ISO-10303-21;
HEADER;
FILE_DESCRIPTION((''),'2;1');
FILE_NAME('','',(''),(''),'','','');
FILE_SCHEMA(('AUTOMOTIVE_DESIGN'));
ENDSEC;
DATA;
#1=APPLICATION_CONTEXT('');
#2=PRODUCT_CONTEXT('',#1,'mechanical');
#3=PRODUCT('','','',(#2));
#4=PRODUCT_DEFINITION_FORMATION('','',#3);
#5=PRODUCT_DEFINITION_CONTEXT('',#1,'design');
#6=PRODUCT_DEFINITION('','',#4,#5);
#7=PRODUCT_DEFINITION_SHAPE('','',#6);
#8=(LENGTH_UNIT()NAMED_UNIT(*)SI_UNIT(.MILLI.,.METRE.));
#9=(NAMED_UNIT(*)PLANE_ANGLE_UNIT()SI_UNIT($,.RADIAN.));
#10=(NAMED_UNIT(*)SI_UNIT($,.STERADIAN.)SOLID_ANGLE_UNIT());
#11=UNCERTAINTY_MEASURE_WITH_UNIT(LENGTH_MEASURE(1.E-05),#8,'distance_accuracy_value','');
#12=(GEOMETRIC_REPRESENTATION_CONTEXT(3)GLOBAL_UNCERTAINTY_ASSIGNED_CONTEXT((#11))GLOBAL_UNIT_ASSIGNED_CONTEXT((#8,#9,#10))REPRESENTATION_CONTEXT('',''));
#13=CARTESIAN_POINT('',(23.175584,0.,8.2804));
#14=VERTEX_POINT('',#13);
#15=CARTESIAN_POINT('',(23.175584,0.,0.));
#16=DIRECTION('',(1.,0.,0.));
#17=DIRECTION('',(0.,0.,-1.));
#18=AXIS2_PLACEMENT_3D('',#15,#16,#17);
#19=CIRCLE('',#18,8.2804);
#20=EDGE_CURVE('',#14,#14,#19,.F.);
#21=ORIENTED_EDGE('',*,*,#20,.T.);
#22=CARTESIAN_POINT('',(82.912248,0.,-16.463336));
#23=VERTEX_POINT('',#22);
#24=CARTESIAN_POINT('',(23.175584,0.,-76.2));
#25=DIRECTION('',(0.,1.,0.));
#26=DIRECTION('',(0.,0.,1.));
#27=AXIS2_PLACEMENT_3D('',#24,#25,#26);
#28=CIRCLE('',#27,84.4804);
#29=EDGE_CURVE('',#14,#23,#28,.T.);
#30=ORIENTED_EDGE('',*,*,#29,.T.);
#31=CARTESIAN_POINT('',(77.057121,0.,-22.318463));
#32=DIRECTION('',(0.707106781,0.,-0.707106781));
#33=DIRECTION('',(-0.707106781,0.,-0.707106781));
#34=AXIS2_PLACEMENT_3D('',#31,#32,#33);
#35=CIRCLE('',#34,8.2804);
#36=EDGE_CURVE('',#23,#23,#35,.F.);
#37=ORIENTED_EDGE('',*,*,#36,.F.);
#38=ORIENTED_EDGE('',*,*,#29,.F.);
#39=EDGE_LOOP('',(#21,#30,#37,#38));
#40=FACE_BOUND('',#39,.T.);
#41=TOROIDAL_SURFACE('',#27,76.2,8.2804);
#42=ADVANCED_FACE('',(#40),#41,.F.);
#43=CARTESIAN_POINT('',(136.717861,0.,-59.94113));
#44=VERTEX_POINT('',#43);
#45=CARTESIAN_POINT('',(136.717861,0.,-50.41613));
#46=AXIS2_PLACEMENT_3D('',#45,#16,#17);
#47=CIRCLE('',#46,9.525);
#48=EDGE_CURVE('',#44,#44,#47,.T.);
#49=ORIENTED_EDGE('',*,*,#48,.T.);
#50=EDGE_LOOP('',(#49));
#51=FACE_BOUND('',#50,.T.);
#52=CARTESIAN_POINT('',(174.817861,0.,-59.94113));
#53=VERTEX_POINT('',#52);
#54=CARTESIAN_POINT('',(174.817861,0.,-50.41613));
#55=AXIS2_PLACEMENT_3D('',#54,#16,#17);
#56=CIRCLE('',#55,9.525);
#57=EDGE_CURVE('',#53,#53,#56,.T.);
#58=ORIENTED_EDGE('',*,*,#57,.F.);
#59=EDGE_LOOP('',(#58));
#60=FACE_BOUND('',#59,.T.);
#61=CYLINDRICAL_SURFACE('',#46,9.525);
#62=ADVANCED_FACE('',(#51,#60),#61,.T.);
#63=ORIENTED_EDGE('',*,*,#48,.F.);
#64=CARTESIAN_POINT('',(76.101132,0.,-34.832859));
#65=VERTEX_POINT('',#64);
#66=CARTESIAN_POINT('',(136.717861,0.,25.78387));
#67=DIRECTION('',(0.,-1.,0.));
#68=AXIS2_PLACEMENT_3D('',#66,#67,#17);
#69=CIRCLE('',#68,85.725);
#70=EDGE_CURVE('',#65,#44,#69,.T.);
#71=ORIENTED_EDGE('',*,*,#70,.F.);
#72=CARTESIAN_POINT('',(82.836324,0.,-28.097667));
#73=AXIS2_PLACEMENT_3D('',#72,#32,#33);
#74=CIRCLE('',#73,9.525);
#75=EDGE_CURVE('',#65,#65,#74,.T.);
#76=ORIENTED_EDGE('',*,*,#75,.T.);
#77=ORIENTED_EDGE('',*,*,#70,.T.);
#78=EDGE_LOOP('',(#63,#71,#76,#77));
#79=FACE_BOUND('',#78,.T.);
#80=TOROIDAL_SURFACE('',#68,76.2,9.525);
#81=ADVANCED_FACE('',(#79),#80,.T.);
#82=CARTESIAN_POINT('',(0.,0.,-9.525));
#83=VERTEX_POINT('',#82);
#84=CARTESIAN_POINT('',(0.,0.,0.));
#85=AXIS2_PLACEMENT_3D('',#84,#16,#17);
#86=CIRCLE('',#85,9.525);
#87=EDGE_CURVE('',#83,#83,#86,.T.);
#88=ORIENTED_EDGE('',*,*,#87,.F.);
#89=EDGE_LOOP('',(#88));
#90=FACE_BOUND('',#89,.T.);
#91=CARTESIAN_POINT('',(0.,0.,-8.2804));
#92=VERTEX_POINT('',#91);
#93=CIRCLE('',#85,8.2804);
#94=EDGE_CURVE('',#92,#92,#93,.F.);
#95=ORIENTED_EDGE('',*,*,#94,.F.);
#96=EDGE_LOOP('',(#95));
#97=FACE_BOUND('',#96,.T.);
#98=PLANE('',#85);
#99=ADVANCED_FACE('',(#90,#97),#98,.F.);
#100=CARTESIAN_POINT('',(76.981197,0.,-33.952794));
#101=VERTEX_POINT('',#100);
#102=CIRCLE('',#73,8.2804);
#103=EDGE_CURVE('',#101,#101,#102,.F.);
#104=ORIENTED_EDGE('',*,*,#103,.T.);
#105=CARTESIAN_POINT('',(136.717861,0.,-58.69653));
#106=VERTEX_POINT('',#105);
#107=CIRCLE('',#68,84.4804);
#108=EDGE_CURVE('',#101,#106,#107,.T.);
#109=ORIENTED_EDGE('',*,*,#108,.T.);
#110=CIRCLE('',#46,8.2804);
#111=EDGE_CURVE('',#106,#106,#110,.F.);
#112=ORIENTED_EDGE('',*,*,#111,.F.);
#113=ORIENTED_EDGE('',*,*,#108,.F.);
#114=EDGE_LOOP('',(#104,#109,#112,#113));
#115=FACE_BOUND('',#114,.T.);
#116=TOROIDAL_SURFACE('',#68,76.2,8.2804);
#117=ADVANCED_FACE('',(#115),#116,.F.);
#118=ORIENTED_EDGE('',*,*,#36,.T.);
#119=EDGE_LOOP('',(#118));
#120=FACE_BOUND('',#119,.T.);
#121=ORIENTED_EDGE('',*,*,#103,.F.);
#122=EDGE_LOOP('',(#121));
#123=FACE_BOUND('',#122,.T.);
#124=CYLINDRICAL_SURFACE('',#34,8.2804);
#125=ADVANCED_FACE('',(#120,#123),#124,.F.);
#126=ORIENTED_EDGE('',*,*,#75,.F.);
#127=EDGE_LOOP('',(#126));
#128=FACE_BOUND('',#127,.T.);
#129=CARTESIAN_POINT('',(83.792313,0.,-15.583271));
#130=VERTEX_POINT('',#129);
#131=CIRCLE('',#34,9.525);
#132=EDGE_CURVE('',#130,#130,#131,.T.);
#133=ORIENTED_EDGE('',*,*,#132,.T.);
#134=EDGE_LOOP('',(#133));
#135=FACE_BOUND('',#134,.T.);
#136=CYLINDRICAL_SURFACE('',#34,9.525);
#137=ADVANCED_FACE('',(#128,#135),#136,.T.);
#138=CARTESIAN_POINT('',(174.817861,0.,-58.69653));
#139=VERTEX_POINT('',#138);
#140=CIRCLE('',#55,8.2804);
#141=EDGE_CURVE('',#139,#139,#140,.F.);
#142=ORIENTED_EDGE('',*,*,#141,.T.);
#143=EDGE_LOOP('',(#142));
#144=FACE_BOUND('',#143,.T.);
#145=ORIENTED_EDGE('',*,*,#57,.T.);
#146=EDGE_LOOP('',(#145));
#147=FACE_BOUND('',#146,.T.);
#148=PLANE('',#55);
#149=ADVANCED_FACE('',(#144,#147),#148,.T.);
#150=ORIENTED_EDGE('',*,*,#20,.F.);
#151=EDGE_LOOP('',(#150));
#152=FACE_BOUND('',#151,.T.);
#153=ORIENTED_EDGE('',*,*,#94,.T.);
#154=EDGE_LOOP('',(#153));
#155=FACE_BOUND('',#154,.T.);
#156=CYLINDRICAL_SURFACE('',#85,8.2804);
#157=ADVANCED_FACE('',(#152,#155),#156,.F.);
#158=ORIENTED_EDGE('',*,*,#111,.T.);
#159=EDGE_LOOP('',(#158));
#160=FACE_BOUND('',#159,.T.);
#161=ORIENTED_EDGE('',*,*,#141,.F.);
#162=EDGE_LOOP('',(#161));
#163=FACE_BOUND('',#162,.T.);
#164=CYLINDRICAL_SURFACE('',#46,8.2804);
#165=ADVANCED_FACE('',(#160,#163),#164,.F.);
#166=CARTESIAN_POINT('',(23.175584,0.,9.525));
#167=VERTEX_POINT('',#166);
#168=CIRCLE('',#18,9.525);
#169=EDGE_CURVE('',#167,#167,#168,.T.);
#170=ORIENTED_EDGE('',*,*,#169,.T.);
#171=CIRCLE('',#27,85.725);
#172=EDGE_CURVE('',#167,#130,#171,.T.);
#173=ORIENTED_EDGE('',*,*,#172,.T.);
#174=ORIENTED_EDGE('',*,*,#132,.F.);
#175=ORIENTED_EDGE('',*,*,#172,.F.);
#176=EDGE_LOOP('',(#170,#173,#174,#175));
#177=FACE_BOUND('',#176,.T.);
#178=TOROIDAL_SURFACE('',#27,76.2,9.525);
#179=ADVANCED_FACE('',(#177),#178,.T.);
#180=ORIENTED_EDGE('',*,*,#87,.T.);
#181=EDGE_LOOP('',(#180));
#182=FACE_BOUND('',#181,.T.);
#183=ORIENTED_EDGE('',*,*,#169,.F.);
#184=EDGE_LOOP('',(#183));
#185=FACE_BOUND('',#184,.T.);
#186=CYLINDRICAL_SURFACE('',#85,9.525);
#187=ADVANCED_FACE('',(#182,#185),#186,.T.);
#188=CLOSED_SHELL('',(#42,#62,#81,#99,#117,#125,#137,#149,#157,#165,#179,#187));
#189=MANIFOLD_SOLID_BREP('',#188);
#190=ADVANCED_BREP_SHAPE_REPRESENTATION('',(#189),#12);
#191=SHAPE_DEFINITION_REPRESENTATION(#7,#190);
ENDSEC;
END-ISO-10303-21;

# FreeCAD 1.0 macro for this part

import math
import FreeCAD as App
import Part
import Sketcher
from FreeCAD import Vector
Q = App.Units.Quantity

doc = App.newDocument("Part")
body = doc.addObject("PartDesign::Body", "Body")

# Sketch on YZ plane
sketch1 = body.newObject("Sketcher::SketchObject", "Sketch")
sketch1.AttachmentSupport = (doc.getObject("YZ_Plane"), [""])
sketch1.MapMode = "FlatFace"
sketch1.addGeometry([
    Part.Circle(Vector(0, 0, 0), Vector(0, 0, 1), 9.525),
    Part.Circle(Vector(0, 0, 0), Vector(0, 0, 1), 8.2804),
], False)
sketch1.addConstraint([
    Sketcher.Constraint("Coincident", 0, 3, -1, 1),
    Sketcher.Constraint("Coincident", 1, 3, -1, 1),
    Sketcher.Constraint("Diameter", 0, Q("0.75 in")),
    Sketcher.Constraint("Diameter", 1, Q("0.652 in")),
])

# Sketch on XZ plane
sketch2 = body.newObject("Sketcher::SketchObject", "Sketch001")
sketch2.AttachmentSupport = (doc.getObject("XZ_Plane"), [""])
sketch2.MapMode = "FlatFace"
sketch2.addGeometry([
    Part.LineSegment(Vector(0, 0, 0), Vector(23.175584, 0, 0)),  # 0
    Part.ArcOfCircle(Part.Circle(Vector(23.175584, -76.2, 0), Vector(0, 0, 1), 76.2), math.radians(45), math.radians(90)),  # 1
    Part.LineSegment(Vector(77.057121, -22.318463, 0), Vector(82.836324, -28.097667, 0)),  # 2
    Part.ArcOfCircle(Part.Circle(Vector(136.717861, 25.78387, 0), Vector(0, 0, 1), 76.2), math.radians(-135), math.radians(-90)),  # 3
    Part.LineSegment(Vector(136.717861, -50.41613, 0), Vector(174.817861, -50.41613, 0)),  # 4
], False)
sketch2.addConstraint([
    Sketcher.Constraint("Tangent", 0, 2, 1, 2),
    Sketcher.Constraint("Tangent", 1, 1, 2, 1),
    Sketcher.Constraint("Tangent", 2, 2, 3, 1),
    Sketcher.Constraint("Tangent", 3, 2, 4, 1),
    Sketcher.Constraint("Horizontal", 0),
    Sketcher.Constraint("Horizontal", 4),
    Sketcher.Constraint("Coincident", 0, 1, -1, 1),
    Sketcher.Constraint("Equal", 1, 3),
    Sketcher.Constraint("Radius", 1, Q("3 in")),
    Sketcher.Constraint("DistanceX", 4, 1, 4, 2, Q("1.5 in")),
    Sketcher.Constraint("Angle", 2, Q("-45 deg")),
    Sketcher.Constraint("DistanceX", 0, 1, 0, 2, 23.175584),
    Sketcher.Constraint("DistanceX", -1, 1, 3, 3, 136.717861),
])
doc.recompute()

additivepipe = body.newObject("PartDesign::AdditivePipe", "AdditivePipe")
additivepipe.Profile = sketch1
additivepipe.Spine = (sketch2, ["Edge1", "Edge2", "Edge3", "Edge4", "Edge5"])

doc.recompute()
